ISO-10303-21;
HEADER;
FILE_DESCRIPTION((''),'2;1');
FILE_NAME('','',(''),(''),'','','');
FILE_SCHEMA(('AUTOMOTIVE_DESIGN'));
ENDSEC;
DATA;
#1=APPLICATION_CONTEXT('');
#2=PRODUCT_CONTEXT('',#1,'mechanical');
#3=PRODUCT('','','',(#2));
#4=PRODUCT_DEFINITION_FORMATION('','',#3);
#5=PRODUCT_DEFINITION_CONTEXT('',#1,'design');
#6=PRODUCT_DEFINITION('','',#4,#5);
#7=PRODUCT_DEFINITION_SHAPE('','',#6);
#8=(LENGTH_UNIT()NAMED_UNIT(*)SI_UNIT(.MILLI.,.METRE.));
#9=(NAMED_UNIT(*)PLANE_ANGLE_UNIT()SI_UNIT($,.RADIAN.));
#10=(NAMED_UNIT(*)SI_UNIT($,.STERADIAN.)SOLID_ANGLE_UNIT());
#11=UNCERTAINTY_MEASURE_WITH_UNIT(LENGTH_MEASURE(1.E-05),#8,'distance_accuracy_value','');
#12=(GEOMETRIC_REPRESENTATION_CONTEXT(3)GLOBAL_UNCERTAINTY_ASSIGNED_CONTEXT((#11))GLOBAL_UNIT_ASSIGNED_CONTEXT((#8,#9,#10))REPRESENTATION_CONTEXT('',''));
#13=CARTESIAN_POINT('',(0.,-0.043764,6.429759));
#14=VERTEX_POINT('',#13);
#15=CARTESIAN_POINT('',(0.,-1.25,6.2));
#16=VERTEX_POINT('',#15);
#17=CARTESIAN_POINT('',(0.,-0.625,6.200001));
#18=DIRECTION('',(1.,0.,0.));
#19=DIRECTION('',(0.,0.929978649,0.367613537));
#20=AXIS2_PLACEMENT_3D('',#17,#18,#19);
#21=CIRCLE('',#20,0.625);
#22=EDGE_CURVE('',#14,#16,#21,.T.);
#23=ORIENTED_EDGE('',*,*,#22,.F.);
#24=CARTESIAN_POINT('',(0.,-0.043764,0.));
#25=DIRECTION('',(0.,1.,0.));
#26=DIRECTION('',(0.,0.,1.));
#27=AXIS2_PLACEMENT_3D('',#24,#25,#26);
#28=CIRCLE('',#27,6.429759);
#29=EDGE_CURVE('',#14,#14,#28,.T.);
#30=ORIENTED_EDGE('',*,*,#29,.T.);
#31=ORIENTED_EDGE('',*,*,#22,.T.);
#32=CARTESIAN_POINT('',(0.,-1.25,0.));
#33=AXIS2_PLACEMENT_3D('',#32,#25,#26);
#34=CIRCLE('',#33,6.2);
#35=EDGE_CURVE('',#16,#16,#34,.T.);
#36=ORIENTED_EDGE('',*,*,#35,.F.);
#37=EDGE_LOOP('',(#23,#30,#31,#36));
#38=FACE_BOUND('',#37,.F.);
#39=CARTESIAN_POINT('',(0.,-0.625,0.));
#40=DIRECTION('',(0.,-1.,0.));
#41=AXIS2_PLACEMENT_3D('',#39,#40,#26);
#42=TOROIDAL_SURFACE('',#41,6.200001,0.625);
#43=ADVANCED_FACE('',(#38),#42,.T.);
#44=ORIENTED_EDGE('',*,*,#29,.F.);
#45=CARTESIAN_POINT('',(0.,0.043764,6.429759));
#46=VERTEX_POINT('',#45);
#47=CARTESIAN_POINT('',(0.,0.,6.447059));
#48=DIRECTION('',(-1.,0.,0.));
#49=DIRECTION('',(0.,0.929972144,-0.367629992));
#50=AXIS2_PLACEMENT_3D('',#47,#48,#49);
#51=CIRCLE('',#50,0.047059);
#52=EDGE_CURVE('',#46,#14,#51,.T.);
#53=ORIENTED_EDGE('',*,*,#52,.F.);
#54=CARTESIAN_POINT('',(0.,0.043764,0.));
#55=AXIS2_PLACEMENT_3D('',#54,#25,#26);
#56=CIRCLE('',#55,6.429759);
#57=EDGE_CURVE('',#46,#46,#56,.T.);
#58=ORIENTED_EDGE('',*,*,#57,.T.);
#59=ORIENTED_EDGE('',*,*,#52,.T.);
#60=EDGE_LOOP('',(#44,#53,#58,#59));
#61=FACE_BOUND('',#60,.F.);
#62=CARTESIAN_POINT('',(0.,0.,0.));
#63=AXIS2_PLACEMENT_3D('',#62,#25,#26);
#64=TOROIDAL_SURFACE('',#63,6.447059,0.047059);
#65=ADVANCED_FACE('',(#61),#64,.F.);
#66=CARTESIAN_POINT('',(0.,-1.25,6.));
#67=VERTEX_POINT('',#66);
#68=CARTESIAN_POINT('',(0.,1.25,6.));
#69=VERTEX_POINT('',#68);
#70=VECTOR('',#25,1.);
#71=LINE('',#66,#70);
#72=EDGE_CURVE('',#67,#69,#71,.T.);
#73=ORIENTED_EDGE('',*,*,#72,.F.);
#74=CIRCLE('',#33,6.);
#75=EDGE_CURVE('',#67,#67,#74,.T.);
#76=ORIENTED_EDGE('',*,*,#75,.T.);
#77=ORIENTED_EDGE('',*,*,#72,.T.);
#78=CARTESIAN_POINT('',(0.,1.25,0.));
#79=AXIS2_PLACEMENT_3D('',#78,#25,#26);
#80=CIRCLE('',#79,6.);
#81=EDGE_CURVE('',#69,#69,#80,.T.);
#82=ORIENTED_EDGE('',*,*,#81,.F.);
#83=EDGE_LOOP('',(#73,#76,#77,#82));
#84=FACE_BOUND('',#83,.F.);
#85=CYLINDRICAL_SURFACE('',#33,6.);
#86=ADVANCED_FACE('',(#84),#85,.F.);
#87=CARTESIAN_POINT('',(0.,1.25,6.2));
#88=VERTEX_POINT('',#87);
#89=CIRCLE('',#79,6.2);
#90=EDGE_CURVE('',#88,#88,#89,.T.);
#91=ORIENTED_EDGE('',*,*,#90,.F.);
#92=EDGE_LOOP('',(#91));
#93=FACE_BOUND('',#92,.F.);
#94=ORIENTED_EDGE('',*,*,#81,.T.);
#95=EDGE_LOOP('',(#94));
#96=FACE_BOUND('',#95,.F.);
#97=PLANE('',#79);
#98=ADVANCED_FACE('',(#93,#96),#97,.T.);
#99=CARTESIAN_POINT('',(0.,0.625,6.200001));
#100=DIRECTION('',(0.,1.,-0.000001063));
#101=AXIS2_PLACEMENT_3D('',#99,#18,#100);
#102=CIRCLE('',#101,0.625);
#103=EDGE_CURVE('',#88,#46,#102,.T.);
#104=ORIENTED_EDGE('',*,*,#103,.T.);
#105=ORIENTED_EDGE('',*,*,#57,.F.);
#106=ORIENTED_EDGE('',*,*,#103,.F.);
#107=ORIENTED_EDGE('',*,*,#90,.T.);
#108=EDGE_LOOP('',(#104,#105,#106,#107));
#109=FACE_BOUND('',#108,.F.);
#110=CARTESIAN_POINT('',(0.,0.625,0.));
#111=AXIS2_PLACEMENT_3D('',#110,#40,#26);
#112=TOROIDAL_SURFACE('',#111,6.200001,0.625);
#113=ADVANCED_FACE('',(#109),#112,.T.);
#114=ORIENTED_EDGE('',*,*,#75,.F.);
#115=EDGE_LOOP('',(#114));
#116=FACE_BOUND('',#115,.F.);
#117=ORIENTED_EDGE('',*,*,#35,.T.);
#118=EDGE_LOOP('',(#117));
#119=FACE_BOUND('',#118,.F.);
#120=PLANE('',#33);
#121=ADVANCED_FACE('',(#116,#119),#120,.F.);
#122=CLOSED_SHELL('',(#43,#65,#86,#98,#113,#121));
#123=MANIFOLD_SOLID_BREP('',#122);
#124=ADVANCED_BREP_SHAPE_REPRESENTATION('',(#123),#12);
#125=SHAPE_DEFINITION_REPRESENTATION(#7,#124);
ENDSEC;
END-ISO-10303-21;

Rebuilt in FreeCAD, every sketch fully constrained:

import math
import FreeCAD as App
import Part
import Sketcher

doc = App.newDocument("Part")
body = doc.addObject("PartDesign::Body", "Body")

# Sketch on YZ plane
sketch1 = body.newObject("Sketcher::SketchObject", "Sketch")
sketch1.AttachmentSupport = (doc.getObject("YZ_Plane"), [""])
sketch1.MapMode = "FlatFace"
sketch1.addGeometry([
    Part.LineSegment(App.Vector(-1.25, 6.2, 0), App.Vector(-1.25, 6, 0)),  # 0
    Part.LineSegment(App.Vector(-1.25, 6, 0), App.Vector(1.25, 6, 0)),  # 1
    Part.LineSegment(App.Vector(1.25, 6, 0), App.Vector(1.25, 6.2, 0)),  # 2
    Part.ArcOfCircle(Part.Circle(App.Vector(0.625, 6.2, 0), App.Vector(0, 0, 1), 0.625), math.radians(0), math.radians(158)),  # 3
    Part.ArcOfCircle(Part.Circle(App.Vector(0, 6.447, 0), App.Vector(0, 0, 1), 0.047), math.radians(-158), math.radians(-22)),  # 4
    Part.ArcOfCircle(Part.Circle(App.Vector(-0.625, 6.2, 0), App.Vector(0, 0, 1), 0.625), math.radians(22), math.radians(180)),  # 5
], False)
sketch1.addConstraint([
    Sketcher.Constraint("Coincident", 0, 2, 1, 1),
    Sketcher.Constraint("Coincident", 1, 2, 2, 1),
    Sketcher.Constraint("Tangent", 2, 2, 3, 1),
    Sketcher.Constraint("Coincident", 3, 2, 4, 2),
    Sketcher.Constraint("Coincident", 4, 1, 5, 1),
    Sketcher.Constraint("Tangent", 5, 2, 0, 1),
    Sketcher.Constraint("Vertical", 0),
    Sketcher.Constraint("Horizontal", 1),
    Sketcher.Constraint("Vertical", 2),
    Sketcher.Constraint("Equal", 3, 5),
    Sketcher.Constraint("Symmetric", 3, 3, 5, 3, -2),
    Sketcher.Constraint("Horizontal", 3, 2, 4, 1),
    Sketcher.Constraint("DistanceX", 1, 1, 1, 2, 2.5),
    Sketcher.Constraint("DistanceY", 0, 2, 0, 1, 0.2),
    Sketcher.Constraint("DistanceY", -1, 1, 0, 2, 6.0),
    Sketcher.Constraint("Radius", 3, 0.625),
    Sketcher.Constraint("Radius", 4, 0.047059),
    Sketcher.Constraint("DistanceY", 3, 2, 4, 3, 0.0173),
])
revolution = body.newObject("PartDesign::Revolution", "Revolution")
revolution.Profile = sketch1
revolution.ReferenceAxis = (sketch1, ["H_Axis"])
revolution.Angle = 360

doc.recompute()
